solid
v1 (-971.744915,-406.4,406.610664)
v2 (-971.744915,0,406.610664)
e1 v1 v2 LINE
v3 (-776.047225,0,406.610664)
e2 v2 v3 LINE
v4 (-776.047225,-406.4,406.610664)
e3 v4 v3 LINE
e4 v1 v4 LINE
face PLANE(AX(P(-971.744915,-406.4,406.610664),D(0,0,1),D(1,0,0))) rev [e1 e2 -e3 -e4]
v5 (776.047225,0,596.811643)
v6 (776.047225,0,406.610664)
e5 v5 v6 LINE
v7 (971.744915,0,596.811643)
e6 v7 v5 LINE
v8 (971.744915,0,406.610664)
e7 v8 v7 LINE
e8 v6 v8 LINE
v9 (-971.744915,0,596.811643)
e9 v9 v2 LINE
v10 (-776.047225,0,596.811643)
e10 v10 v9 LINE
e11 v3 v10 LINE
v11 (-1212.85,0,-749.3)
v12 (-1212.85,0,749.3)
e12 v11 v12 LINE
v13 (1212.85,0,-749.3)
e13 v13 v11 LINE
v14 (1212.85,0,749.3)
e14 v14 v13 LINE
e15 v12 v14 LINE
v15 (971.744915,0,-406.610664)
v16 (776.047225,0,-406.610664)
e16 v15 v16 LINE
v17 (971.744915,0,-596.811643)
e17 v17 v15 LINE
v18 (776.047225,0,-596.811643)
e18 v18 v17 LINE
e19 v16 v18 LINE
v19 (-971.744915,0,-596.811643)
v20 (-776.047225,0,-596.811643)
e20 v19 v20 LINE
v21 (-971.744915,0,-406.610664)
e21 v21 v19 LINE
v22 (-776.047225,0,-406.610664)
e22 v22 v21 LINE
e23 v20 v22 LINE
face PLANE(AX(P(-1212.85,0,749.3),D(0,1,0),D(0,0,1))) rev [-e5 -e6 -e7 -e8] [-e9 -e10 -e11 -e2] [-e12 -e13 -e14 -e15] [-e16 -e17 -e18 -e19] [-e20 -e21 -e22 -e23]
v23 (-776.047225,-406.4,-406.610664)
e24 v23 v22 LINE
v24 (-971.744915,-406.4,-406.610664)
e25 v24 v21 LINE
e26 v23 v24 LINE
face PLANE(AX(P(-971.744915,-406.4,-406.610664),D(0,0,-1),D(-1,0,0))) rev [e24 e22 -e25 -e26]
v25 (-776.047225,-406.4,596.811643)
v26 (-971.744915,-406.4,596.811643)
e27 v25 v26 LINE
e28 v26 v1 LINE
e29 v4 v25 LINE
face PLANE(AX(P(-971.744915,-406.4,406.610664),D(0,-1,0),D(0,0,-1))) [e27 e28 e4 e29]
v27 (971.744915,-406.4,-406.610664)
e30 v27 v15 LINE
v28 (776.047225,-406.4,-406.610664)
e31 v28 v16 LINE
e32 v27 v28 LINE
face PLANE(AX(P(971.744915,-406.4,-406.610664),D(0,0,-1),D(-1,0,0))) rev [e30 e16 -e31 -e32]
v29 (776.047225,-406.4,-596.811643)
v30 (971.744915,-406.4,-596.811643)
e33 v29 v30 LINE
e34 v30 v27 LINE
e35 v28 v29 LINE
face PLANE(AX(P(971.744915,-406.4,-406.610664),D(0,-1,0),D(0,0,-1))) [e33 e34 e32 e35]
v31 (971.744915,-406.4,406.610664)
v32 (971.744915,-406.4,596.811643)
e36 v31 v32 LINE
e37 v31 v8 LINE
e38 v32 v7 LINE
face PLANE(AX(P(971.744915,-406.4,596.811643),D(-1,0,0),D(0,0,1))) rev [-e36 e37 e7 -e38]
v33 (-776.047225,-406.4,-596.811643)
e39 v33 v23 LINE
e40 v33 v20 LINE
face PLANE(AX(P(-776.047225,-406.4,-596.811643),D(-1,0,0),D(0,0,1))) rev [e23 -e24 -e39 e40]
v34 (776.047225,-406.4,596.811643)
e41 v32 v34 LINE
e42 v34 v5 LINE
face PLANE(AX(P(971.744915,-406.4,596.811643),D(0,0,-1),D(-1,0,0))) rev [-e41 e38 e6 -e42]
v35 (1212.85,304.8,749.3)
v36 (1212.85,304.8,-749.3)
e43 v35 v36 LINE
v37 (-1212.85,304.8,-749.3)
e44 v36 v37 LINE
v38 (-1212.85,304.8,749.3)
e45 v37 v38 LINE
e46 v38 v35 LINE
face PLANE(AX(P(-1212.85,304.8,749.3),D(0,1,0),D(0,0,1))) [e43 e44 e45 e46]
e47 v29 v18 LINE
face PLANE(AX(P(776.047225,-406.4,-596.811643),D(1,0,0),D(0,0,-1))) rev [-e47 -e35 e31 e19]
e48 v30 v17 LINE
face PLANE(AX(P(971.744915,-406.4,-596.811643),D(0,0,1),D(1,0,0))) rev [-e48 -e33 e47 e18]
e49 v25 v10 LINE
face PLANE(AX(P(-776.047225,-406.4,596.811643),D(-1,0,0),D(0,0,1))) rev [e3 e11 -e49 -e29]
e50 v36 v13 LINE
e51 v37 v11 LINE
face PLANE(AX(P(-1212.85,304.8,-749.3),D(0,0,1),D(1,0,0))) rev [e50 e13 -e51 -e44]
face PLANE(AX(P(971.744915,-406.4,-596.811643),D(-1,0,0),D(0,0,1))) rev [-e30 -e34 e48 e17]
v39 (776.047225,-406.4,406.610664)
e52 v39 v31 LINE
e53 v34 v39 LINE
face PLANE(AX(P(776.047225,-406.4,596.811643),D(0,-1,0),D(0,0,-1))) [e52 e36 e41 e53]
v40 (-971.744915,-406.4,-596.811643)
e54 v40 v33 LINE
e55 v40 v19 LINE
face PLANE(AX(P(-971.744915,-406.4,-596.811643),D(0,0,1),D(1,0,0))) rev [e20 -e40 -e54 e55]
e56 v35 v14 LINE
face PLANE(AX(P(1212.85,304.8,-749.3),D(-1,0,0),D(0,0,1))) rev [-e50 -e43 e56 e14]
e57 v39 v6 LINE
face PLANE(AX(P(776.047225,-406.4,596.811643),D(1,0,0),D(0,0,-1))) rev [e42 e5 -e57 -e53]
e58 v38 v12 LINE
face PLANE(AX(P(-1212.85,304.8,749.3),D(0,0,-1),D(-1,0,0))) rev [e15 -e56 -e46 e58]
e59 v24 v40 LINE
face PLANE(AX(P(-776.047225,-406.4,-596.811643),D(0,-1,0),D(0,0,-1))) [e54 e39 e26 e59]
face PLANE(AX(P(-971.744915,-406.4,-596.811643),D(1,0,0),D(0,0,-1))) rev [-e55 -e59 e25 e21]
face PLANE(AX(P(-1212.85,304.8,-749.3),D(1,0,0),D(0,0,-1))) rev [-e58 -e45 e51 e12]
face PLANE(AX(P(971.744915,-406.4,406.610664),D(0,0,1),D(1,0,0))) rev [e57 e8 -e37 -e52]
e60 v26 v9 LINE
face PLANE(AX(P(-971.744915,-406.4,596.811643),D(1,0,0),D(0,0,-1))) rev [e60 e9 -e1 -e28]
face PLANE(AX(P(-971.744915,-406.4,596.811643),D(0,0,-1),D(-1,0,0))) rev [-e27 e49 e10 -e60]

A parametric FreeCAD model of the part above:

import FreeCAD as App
import Part
import Sketcher
from FreeCAD import Vector
Q = App.Units.Quantity

doc = App.newDocument("Part")
body = doc.addObject("PartDesign::Body", "Body")

sketch1 = body.newObject("Sketcher::SketchObject", "Sketch")
sketch1.AttachmentSupport = (doc.getObject("XZ_Plane"), [""])
sketch1.MapMode = "FlatFace"
sketch1.addGeometry(Part.LineSegment(Vector(-1213, -749, 0), Vector(-1213, 749, 0)), False)
sketch1.addGeometry(Part.LineSegment(Vector(-1213, 749, 0), Vector(1213, 749, 0)), False)
sketch1.addGeometry(Part.LineSegment(Vector(1213, 749, 0), Vector(1213, -749, 0)), False)
sketch1.addGeometry(Part.LineSegment(Vector(1213, -749, 0), Vector(-1213, -749, 0)), False)
sketch1.addConstraint(Sketcher.Constraint("Coincident", 0, 2, 1, 1))
sketch1.addConstraint(Sketcher.Constraint("Coincident", 1, 2, 2, 1))
sketch1.addConstraint(Sketcher.Constraint("Coincident", 2, 2, 3, 1))
sketch1.addConstraint(Sketcher.Constraint("Coincident", 3, 2, 0, 1))
sketch1.addConstraint(Sketcher.Constraint("Vertical", 0))
sketch1.addConstraint(Sketcher.Constraint("Horizontal", 1))
sketch1.addConstraint(Sketcher.Constraint("Vertical", 2))
sketch1.addConstraint(Sketcher.Constraint("Horizontal", 3))
sketch1.addConstraint(Sketcher.Constraint("Symmetric", 0, 2, 2, 2, -1, 1))
sketch1.addConstraint(Sketcher.Constraint("DistanceY", 0, 1, 0, 2, Q("59 in")))
sketch1.addConstraint(Sketcher.Constraint("DistanceX", 1, 1, 1, 2, Q("95.5 in")))
pad1 = body.newObject("PartDesign::Pad", "Pad")
pad1.Profile = sketch1
pad1.Length = Q("12 in")
pad1.Reversed = True

sketch2 = body.newObject("Sketcher::SketchObject", "Sketch001")
sketch2.AttachmentSupport = (doc.getObject("XZ_Plane"), [""])
sketch2.MapMode = "FlatFace"
sketch2.addGeometry(Part.LineSegment(Vector(776, 597, 0), Vector(776, 407, 0)), False)
sketch2.addGeometry(Part.LineSegment(Vector(776, 407, 0), Vector(972, 407, 0)), False)
sketch2.addGeometry(Part.LineSegment(Vector(972, 407, 0), Vector(972, 597, 0)), False)
sketch2.addGeometry(Part.LineSegment(Vector(972, 597, 0), Vector(776, 597, 0)), False)
sketch2.addGeometry(Part.LineSegment(Vector(-972, 597, 0), Vector(-972, 407, 0)), False)
sketch2.addGeometry(Part.LineSegment(Vector(-972, 407, 0), Vector(-776, 407, 0)), False)
sketch2.addGeometry(Part.LineSegment(Vector(-776, 407, 0), Vector(-776, 597, 0)), False)
sketch2.addGeometry(Part.LineSegment(Vector(-776, 597, 0), Vector(-972, 597, 0)), False)
sketch2.addGeometry(Part.LineSegment(Vector(-972, -407, 0), Vector(-972, -597, 0)), False)
sketch2.addGeometry(Part.LineSegment(Vector(-972, -597, 0), Vector(-776, -597, 0)), False)
sketch2.addGeometry(Part.LineSegment(Vector(-776, -597, 0), Vector(-776, -407, 0)), False)
sketch2.addGeometry(Part.LineSegment(Vector(-776, -407, 0), Vector(-972, -407, 0)), False)
sketch2.addGeometry(Part.LineSegment(Vector(776, -407, 0), Vector(776, -597, 0)), False)
sketch2.addGeometry(Part.LineSegment(Vector(776, -597, 0), Vector(972, -597, 0)), False)
sketch2.addGeometry(Part.LineSegment(Vector(972, -597, 0), Vector(972, -407, 0)), False)
sketch2.addGeometry(Part.LineSegment(Vector(972, -407, 0), Vector(776, -407, 0)), False)
sketch2.addConstraint(Sketcher.Constraint("Coincident", 0, 2, 1, 1))
sketch2.addConstraint(Sketcher.Constraint("Coincident", 1, 2, 2, 1))
sketch2.addConstraint(Sketcher.Constraint("Coincident", 2, 2, 3, 1))
sketch2.addConstraint(Sketcher.Constraint("Coincident", 3, 2, 0, 1))
sketch2.addConstraint(Sketcher.Constraint("Coincident", 4, 2, 5, 1))
sketch2.addConstraint(Sketcher.Constraint("Coincident", 5, 2, 6, 1))
sketch2.addConstraint(Sketcher.Constraint("Coincident", 6, 2, 7, 1))
sketch2.addConstraint(Sketcher.Constraint("Coincident", 7, 2, 4, 1))
sketch2.addConstraint(Sketcher.Constraint("Coincident", 8, 2, 9, 1))
sketch2.addConstraint(Sketcher.Constraint("Coincident", 9, 2, 10, 1))
sketch2.addConstraint(Sketcher.Constraint("Coincident", 10, 2, 11, 1))
sketch2.addConstraint(Sketcher.Constraint("Coincident", 11, 2, 8, 1))
sketch2.addConstraint(Sketcher.Constraint("Coincident", 12, 2, 13, 1))
sketch2.addConstraint(Sketcher.Constraint("Coincident", 13, 2, 14, 1))
sketch2.addConstraint(Sketcher.Constraint("Coincident", 14, 2, 15, 1))
sketch2.addConstraint(Sketcher.Constraint("Coincident", 15, 2, 12, 1))
sketch2.addConstraint(Sketcher.Constraint("Vertical", 0))
sketch2.addConstraint(Sketcher.Constraint("Horizontal", 1))
sketch2.addConstraint(Sketcher.Constraint("Vertical", 2))
sketch2.addConstraint(Sketcher.Constraint("Horizontal", 3))
sketch2.addConstraint(Sketcher.Constraint("Vertical", 4))
sketch2.addConstraint(Sketcher.Constraint("Horizontal", 5))
sketch2.addConstraint(Sketcher.Constraint("Vertical", 6))
sketch2.addConstraint(Sketcher.Constraint("Horizontal", 7))
sketch2.addConstraint(Sketcher.Constraint("Vertical", 8))
sketch2.addConstraint(Sketcher.Constraint("Horizontal", 9))
sketch2.addConstraint(Sketcher.Constraint("Vertical", 10))
sketch2.addConstraint(Sketcher.Constraint("Horizontal", 11))
sketch2.addConstraint(Sketcher.Constraint("Vertical", 12))
sketch2.addConstraint(Sketcher.Constraint("Horizontal", 13))
sketch2.addConstraint(Sketcher.Constraint("Vertical", 14))
sketch2.addConstraint(Sketcher.Constraint("Horizontal", 15))
sketch2.addConstraint(Sketcher.Constraint("Symmetric", 2, 2, 8, 2, -1, 1))
sketch2.addConstraint(Sketcher.Constraint("Symmetric", 0, 2, 10, 2, -1, 1))
sketch2.addConstraint(Sketcher.Constraint("Symmetric", 6, 2, 12, 2, -1, 1))
sketch2.addConstraint(Sketcher.Constraint("Symmetric", 4, 2, 14, 2, -1, 1))
sketch2.addConstraint(Sketcher.Constraint("Symmetric", 1, 2, 4, 2, -2))
sketch2.addConstraint(Sketcher.Constraint("Symmetric", 3, 2, 6, 2, -2))
sketch2.addConstraint(Sketcher.Constraint("DistanceX", 1, 1, 1, 2, 195.69769))
sketch2.addConstraint(Sketcher.Constraint("DistanceY", 0, 2, 0, 1, 190.200979))
sketch2.addConstraint(Sketcher.Constraint("DistanceX", 4, 2, 0, 2, 1747.79214))
sketch2.addConstraint(Sketcher.Constraint("DistanceY", -1, 1, 0, 2, 406.610664))
pad2 = body.newObject("PartDesign::Pad", "Pad001")
pad2.Profile = sketch2
pad2.Length = Q("16 in")

doc.recompute()
